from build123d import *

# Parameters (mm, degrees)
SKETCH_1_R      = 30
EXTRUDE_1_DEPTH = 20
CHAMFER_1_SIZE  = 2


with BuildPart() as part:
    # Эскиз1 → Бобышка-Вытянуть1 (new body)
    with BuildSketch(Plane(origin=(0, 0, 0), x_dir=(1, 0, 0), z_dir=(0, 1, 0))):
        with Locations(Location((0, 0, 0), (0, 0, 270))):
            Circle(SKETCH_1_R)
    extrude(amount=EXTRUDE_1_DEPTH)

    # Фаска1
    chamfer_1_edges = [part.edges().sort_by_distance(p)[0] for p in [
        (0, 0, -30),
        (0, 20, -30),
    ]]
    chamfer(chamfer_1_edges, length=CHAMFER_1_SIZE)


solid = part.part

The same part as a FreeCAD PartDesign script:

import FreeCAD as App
import Part
import Sketcher
from FreeCAD import Vector
Q = App.Units.Quantity


def edges_at(feature, points):
    """Names of the edges that pass closest to the given points."""
    edges = feature.Shape.Edges
    near = lambda p: min(range(len(edges)), key=lambda i: edges[i].distToShape(Part.Vertex(*p))[0])
    return sorted({f"Edge{near(p) + 1}" for p in points})

doc = App.newDocument("Part")
body = doc.addObject("PartDesign::Body", "Body")

# Sketch on XZ plane
sketch1 = doc.addObject("Sketcher::SketchObject", "Sketch")
body.addObject(sketch1)
sketch1.AttachmentSupport = (doc.XZ_Plane, [""])
sketch1.MapMode = "FlatFace"
sketch1.addGeometry(Part.Circle(Vector(0, 0, 0), Vector(0, 0, 1), 30), False)
sketch1.addConstraint([
    Sketcher.Constraint("Coincident", 0, 3, -1, 1),
    Sketcher.Constraint("Diameter", 0, Q("60 mm")),
])
pad1 = doc.addObject("PartDesign::Pad", "Pad")
body.addObject(pad1)
pad1.Profile = sketch1
pad1.Length = 20
pad1.Reversed = True
doc.recompute()

chamfer = doc.addObject("PartDesign::Chamfer", "Chamfer")
body.addObject(chamfer)
chamfer.Base = (pad1, edges_at(pad1, [(0, 0, -30), (0, 20, -30)]))
chamfer.Size = 2

doc.recompute()
